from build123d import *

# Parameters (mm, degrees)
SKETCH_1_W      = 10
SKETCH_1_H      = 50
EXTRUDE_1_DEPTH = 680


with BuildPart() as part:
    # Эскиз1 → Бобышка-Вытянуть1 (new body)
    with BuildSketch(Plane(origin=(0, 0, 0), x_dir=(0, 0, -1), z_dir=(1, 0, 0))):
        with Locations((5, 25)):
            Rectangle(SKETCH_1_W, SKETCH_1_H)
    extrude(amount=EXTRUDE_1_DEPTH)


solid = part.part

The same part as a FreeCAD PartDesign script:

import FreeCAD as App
import Part
import Sketcher
Q = App.Units.Quantity


def add_polygon(sketch, points):
    """Adds a closed chain of lines whose ends are joined by coincident constraints."""
    first, n = sketch.GeometryCount, len(points)
    for a, b in zip(points, points[1:] + points[:1]):
        sketch.addGeometry(Part.LineSegment(App.Vector(*a, 0), App.Vector(*b, 0)), False)
    for i in range(n):
        sketch.addConstraint(Sketcher.Constraint("Coincident", first + i, 2, first + (i + 1) % n, 1))

doc = App.newDocument("Part")
body = doc.addObject("PartDesign::Body", "Body")

sketch1 = body.newObject("Sketcher::SketchObject", "Sketch")
sketch1.AttachmentSupport = (doc.getObject("YZ_Plane"), [""])
sketch1.MapMode = "FlatFace"
add_polygon(sketch1, [(50, 0), (0, 0), (0, -10), (50, -10)])
sketch1.addConstraint(Sketcher.Constraint("Horizontal", 0))
sketch1.addConstraint(Sketcher.Constraint("Vertical", 1))
sketch1.addConstraint(Sketcher.Constraint("Horizontal", 2))
sketch1.addConstraint(Sketcher.Constraint("Vertical", 3))
sketch1.addConstraint(Sketcher.Constraint("Coincident", 0, 2, -1, 1))
sketch1.addConstraint(Sketcher.Constraint("DistanceX", 0, 2, 0, 1, Q("50 mm")))
sketch1.addConstraint(Sketcher.Constraint("DistanceY", 1, 2, 1, 1, Q("10 mm")))
pad1 = body.newObject("PartDesign::Pad", "Pad")
pad1.Profile = sketch1
pad1.Length = 680

doc.recompute()
